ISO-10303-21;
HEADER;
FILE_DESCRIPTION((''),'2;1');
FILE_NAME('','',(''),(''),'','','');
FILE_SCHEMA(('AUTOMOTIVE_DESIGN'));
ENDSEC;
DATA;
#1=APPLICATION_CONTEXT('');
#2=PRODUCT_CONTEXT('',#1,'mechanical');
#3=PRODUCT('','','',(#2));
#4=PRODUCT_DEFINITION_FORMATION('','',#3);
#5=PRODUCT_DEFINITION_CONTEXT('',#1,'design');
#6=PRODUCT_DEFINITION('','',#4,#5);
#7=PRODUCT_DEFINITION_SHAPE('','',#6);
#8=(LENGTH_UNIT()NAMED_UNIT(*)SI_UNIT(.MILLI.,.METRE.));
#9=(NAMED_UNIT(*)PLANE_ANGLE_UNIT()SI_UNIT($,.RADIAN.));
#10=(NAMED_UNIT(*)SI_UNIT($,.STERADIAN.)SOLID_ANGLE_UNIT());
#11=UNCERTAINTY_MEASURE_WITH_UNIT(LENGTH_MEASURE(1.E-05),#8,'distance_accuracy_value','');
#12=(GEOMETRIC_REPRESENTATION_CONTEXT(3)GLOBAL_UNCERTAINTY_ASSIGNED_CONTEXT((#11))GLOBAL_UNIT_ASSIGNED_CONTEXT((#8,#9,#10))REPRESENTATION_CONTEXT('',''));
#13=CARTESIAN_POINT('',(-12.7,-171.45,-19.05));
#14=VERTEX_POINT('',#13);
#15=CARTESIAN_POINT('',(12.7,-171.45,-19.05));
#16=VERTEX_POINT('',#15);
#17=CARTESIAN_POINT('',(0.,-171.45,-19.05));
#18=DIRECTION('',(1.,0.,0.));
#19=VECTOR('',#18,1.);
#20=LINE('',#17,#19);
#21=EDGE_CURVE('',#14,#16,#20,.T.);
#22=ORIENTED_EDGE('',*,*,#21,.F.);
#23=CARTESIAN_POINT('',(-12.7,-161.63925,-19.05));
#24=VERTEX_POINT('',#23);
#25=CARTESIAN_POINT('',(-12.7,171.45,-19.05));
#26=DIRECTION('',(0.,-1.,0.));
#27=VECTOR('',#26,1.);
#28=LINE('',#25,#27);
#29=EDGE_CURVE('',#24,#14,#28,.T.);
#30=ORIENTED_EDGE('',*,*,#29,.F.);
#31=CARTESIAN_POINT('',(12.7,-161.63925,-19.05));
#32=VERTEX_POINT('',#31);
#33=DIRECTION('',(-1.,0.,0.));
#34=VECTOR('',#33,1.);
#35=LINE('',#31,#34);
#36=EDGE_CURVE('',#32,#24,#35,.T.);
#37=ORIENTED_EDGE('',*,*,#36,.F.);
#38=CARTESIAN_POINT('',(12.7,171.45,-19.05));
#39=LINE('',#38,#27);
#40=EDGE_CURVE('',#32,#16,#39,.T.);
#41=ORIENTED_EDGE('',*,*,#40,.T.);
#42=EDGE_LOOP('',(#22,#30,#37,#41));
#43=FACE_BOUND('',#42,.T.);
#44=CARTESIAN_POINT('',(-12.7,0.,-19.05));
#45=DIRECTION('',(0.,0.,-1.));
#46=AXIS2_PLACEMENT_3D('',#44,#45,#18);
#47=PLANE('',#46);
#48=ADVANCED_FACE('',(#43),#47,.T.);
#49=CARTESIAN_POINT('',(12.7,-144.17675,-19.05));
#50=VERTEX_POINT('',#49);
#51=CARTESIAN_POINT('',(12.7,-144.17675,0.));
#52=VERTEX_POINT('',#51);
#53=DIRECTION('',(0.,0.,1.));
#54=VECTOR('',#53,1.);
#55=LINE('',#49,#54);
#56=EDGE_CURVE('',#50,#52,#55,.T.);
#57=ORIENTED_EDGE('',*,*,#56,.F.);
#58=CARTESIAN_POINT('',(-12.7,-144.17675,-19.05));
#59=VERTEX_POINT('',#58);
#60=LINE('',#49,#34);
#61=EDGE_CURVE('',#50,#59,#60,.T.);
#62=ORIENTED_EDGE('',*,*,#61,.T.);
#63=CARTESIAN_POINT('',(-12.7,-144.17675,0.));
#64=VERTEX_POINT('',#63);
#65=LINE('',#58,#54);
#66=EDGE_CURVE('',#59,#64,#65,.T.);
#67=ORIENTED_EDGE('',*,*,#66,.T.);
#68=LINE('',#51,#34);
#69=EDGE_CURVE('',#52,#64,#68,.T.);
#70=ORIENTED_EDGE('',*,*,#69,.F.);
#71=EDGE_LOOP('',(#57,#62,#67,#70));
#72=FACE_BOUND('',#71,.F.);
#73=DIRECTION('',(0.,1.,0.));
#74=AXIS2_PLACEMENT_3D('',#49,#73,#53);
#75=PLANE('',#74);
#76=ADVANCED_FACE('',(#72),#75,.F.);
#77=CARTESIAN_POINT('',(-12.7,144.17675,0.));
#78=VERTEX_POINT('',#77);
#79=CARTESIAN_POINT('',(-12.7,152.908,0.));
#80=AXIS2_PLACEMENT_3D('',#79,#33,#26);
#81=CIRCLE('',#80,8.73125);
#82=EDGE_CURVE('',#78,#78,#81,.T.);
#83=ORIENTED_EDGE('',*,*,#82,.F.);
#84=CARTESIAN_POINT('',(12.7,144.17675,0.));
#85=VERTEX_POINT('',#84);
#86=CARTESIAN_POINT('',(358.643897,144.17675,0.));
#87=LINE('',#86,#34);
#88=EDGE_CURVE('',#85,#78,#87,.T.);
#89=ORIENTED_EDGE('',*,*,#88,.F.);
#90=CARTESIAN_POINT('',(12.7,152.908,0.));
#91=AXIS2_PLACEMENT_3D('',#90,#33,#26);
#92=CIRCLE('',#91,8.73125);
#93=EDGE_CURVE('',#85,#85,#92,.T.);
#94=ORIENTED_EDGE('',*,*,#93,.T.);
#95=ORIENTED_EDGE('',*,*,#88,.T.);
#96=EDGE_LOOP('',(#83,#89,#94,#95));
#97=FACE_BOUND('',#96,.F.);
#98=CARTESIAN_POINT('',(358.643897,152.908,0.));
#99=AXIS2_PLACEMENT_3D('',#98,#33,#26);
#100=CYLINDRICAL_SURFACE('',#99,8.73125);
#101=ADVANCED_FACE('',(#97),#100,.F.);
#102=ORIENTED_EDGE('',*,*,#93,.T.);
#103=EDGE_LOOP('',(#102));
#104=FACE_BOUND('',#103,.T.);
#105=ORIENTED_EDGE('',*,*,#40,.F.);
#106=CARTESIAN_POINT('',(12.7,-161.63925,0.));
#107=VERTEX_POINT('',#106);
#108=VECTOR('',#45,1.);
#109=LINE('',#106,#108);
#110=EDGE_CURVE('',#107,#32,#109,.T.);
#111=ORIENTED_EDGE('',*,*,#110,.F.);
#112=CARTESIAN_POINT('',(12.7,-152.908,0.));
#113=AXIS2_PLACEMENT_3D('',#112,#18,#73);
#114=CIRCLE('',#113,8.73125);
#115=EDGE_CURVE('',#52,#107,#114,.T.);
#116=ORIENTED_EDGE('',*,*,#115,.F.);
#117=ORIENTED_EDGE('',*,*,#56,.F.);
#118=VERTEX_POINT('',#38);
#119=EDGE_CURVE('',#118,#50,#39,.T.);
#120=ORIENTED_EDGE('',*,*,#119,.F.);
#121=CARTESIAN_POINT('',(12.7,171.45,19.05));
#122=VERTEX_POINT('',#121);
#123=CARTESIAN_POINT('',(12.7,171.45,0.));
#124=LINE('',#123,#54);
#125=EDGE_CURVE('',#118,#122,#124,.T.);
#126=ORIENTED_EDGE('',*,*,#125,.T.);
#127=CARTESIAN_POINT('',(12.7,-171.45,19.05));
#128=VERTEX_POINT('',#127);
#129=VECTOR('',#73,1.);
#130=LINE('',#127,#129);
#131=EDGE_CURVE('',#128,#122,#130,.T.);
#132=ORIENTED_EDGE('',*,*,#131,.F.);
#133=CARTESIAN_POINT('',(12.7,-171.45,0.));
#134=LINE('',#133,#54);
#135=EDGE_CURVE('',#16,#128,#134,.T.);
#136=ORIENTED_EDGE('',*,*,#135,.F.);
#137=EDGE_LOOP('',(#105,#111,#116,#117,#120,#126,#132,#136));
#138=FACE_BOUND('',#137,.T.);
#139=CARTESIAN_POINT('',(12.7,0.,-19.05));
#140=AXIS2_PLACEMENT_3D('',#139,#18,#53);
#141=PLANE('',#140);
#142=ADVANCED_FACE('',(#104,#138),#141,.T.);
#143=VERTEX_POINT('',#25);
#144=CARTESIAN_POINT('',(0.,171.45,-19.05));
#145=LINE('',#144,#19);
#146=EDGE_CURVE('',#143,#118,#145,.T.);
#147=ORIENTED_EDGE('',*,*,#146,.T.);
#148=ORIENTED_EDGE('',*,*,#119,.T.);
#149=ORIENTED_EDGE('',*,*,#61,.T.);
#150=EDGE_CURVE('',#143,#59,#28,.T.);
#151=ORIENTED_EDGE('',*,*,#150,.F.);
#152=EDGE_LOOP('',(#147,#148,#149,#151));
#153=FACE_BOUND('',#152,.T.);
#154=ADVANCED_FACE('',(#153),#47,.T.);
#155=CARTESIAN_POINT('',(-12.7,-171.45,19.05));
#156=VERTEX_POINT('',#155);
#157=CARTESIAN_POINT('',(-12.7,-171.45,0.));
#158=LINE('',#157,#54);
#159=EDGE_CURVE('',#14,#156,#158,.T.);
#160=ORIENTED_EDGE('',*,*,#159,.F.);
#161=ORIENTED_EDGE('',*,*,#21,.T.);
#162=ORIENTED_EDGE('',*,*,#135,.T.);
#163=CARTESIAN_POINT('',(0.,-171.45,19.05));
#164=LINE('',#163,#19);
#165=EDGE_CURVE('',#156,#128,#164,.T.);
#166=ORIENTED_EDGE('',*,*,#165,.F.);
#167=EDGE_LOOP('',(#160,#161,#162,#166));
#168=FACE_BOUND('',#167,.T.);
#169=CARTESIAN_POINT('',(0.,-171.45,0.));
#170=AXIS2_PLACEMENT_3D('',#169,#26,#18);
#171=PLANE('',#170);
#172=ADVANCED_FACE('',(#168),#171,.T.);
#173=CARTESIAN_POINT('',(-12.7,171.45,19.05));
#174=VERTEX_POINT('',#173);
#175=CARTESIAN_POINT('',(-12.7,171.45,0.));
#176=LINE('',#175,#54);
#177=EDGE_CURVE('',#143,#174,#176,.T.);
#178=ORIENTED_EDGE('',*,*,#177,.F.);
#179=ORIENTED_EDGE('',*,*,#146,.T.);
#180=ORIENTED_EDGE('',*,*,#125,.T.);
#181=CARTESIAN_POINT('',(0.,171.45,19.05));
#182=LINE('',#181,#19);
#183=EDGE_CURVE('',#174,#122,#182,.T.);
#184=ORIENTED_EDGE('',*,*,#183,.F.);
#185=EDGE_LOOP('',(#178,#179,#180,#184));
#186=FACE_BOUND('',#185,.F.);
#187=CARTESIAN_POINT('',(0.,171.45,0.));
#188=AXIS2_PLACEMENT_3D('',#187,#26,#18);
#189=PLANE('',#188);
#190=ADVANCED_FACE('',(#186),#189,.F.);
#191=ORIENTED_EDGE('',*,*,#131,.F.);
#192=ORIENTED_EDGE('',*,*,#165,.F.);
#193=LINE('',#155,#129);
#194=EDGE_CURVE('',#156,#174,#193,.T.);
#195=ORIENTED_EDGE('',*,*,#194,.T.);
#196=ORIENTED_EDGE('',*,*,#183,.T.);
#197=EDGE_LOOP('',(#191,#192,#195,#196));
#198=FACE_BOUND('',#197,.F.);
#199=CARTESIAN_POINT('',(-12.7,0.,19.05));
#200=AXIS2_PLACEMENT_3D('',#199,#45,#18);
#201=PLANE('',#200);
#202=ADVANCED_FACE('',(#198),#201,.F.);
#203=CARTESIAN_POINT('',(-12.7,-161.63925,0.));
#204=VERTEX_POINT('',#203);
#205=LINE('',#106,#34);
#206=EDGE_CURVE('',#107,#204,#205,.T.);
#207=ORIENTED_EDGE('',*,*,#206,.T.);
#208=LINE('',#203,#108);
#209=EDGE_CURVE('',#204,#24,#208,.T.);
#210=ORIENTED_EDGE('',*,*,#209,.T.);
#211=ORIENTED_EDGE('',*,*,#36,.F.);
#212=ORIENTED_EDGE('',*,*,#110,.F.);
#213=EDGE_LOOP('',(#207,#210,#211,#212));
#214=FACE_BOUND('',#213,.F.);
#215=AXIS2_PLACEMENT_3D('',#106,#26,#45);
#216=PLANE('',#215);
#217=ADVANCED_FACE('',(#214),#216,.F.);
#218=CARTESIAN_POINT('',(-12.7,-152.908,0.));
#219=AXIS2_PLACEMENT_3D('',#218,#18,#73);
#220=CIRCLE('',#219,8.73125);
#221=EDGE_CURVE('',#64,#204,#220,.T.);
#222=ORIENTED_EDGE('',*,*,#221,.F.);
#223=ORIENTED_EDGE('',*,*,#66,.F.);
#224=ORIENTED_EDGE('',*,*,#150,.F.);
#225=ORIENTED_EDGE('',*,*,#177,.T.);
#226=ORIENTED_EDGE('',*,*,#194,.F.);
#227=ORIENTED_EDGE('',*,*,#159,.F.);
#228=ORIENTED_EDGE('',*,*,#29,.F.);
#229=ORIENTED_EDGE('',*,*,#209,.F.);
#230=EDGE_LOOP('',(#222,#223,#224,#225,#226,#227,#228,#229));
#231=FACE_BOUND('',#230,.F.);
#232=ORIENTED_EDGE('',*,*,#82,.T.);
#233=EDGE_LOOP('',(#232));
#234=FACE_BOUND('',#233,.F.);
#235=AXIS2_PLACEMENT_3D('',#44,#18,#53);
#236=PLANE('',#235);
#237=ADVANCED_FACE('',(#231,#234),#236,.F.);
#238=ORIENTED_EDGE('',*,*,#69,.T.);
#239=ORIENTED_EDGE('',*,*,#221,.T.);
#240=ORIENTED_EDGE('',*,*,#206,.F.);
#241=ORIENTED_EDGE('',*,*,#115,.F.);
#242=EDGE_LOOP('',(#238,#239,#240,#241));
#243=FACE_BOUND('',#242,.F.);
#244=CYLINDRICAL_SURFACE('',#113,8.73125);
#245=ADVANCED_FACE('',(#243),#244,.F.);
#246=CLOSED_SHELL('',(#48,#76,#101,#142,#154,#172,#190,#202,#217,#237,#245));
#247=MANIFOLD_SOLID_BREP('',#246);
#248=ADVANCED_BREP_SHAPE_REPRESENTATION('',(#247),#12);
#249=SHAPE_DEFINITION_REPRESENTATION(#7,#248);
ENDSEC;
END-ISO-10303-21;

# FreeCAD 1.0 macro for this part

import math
import FreeCAD as App
import Part
import Sketcher
from FreeCAD import Vector
Q = App.Units.Quantity

doc = App.newDocument("Part")
body = doc.addObject("PartDesign::Body", "Body")

# Sketch on XZ plane
sketch1 = doc.addObject("Sketcher::SketchObject", "Sketch")
body.addObject(sketch1)
sketch1.AttachmentSupport = (doc.XZ_Plane, [""])
sketch1.MapMode = "FlatFace"
sketch1.addGeometry(Part.LineSegment(Vector(-13, 19, 0), Vector(-13, -19, 0)), False)
sketch1.addGeometry(Part.LineSegment(Vector(-13, -19, 0), Vector(13, -19, 0)), False)
sketch1.addGeometry(Part.LineSegment(Vector(13, -19, 0), Vector(13, 19, 0)), False)
sketch1.addGeometry(Part.LineSegment(Vector(13, 19, 0), Vector(-13, 19, 0)), False)
sketch1.addConstraint(Sketcher.Constraint("Coincident", 0, 2, 1, 1))
sketch1.addConstraint(Sketcher.Constraint("Coincident", 1, 2, 2, 1))
sketch1.addConstraint(Sketcher.Constraint("Coincident", 2, 2, 3, 1))
sketch1.addConstraint(Sketcher.Constraint("Coincident", 3, 2, 0, 1))
sketch1.addConstraint(Sketcher.Constraint("Vertical", 0))
sketch1.addConstraint(Sketcher.Constraint("Horizontal", 1))
sketch1.addConstraint(Sketcher.Constraint("Vertical", 2))
sketch1.addConstraint(Sketcher.Constraint("Horizontal", 3))
sketch1.addConstraint(Sketcher.Constraint("Symmetric", 0, 2, 2, 2, -1, 1))
sketch1.addConstraint(Sketcher.Constraint("DistanceX", 1, 1, 1, 2, Q("1 in")))
sketch1.addConstraint(Sketcher.Constraint("DistanceY", 0, 2, 0, 1, Q("1.5 in")))
pad1 = doc.addObject("PartDesign::Pad", "Pad")
body.addObject(pad1)
pad1.Profile = sketch1
pad1.Type = "TwoLengths"
pad1.Length = Q("6.75 in")
pad1.Length2 = Q("6.75 in")

# Sketch on YZ plane
sketch2 = doc.addObject("Sketcher::SketchObject", "Sketch001")
body.addObject(sketch2)
sketch2.AttachmentSupport = (doc.YZ_Plane, [""])
sketch2.MapMode = "FlatFace"
sketch2.AttachmentOffset = App.Placement(Vector(0, 0, 0.5 * 25.4), App.Rotation())
sketch2.addGeometry(Part.Circle(Vector(153, 0, 0), Vector(0, 0, 1), 9), False)
sketch2.addConstraint(Sketcher.Constraint("PointOnObject", 0, 3, -1))
sketch2.addConstraint(Sketcher.Constraint("Diameter", 0, Q("0.6875 in")))
sketch2.addConstraint(Sketcher.Constraint("DistanceX", -1, 1, 0, 3, Q("6.02 in")))
doc.recompute()
hole = doc.addObject("PartDesign::Hole", "Hole")
body.addObject(hole)
hole.Profile = sketch2
hole.ThreadType = "None"
hole.Diameter = Q("0.6875 in")
hole.DepthType = "ThroughAll"

# Sketch on YZ plane
sketch3 = doc.addObject("Sketcher::SketchObject", "Sketch002")
body.addObject(sketch3)
sketch3.AttachmentSupport = (doc.YZ_Plane, [""])
sketch3.MapMode = "FlatFace"
sketch3.AttachmentOffset = App.Placement(Vector(0, 0, 0.5 * 25.4), App.Rotation())
sketch3.addGeometry(Part.LineSegment(Vector(-144, -19, 0), Vector(-144, 0, 0)), False)
sketch3.addGeometry(Part.ArcOfCircle(Part.Circle(Vector(-153, 0, 0), Vector(0, 0, 1), 9), math.radians(0), math.radians(180)), False)
sketch3.addGeometry(Part.LineSegment(Vector(-162, 0, 0), Vector(-162, -19, 0)), False)
sketch3.addGeometry(Part.LineSegment(Vector(-162, -19, 0), Vector(-144, -19, 0)), False)
sketch3.addConstraint(Sketcher.Constraint("Tangent", 0, 2, 1, 1))
sketch3.addConstraint(Sketcher.Constraint("Tangent", 1, 2, 2, 1))
sketch3.addConstraint(Sketcher.Constraint("Coincident", 2, 2, 3, 1))
sketch3.addConstraint(Sketcher.Constraint("Coincident", 3, 2, 0, 1))
sketch3.addConstraint(Sketcher.Constraint("Vertical", 0))
sketch3.addConstraint(Sketcher.Constraint("Vertical", 2))
sketch3.addConstraint(Sketcher.Constraint("Horizontal", 3))
sketch3.addConstraint(Sketcher.Constraint("PointOnObject", 1, 3, -1))
sketch3.addConstraint(Sketcher.Constraint("Radius", 1, Q("0.34375 in")))
sketch3.addConstraint(Sketcher.Constraint("DistanceY", 0, 1, 0, 2, Q("0.75 in")))
sketch3.addConstraint(Sketcher.Constraint("DistanceX", 1, 3, -1, 1, Q("6.02 in")))
pocket1 = doc.addObject("PartDesign::Pocket", "Pocket")
body.addObject(pocket1)
pocket1.Profile = sketch3
pocket1.Length = Q("1 in")

doc.recompute()
